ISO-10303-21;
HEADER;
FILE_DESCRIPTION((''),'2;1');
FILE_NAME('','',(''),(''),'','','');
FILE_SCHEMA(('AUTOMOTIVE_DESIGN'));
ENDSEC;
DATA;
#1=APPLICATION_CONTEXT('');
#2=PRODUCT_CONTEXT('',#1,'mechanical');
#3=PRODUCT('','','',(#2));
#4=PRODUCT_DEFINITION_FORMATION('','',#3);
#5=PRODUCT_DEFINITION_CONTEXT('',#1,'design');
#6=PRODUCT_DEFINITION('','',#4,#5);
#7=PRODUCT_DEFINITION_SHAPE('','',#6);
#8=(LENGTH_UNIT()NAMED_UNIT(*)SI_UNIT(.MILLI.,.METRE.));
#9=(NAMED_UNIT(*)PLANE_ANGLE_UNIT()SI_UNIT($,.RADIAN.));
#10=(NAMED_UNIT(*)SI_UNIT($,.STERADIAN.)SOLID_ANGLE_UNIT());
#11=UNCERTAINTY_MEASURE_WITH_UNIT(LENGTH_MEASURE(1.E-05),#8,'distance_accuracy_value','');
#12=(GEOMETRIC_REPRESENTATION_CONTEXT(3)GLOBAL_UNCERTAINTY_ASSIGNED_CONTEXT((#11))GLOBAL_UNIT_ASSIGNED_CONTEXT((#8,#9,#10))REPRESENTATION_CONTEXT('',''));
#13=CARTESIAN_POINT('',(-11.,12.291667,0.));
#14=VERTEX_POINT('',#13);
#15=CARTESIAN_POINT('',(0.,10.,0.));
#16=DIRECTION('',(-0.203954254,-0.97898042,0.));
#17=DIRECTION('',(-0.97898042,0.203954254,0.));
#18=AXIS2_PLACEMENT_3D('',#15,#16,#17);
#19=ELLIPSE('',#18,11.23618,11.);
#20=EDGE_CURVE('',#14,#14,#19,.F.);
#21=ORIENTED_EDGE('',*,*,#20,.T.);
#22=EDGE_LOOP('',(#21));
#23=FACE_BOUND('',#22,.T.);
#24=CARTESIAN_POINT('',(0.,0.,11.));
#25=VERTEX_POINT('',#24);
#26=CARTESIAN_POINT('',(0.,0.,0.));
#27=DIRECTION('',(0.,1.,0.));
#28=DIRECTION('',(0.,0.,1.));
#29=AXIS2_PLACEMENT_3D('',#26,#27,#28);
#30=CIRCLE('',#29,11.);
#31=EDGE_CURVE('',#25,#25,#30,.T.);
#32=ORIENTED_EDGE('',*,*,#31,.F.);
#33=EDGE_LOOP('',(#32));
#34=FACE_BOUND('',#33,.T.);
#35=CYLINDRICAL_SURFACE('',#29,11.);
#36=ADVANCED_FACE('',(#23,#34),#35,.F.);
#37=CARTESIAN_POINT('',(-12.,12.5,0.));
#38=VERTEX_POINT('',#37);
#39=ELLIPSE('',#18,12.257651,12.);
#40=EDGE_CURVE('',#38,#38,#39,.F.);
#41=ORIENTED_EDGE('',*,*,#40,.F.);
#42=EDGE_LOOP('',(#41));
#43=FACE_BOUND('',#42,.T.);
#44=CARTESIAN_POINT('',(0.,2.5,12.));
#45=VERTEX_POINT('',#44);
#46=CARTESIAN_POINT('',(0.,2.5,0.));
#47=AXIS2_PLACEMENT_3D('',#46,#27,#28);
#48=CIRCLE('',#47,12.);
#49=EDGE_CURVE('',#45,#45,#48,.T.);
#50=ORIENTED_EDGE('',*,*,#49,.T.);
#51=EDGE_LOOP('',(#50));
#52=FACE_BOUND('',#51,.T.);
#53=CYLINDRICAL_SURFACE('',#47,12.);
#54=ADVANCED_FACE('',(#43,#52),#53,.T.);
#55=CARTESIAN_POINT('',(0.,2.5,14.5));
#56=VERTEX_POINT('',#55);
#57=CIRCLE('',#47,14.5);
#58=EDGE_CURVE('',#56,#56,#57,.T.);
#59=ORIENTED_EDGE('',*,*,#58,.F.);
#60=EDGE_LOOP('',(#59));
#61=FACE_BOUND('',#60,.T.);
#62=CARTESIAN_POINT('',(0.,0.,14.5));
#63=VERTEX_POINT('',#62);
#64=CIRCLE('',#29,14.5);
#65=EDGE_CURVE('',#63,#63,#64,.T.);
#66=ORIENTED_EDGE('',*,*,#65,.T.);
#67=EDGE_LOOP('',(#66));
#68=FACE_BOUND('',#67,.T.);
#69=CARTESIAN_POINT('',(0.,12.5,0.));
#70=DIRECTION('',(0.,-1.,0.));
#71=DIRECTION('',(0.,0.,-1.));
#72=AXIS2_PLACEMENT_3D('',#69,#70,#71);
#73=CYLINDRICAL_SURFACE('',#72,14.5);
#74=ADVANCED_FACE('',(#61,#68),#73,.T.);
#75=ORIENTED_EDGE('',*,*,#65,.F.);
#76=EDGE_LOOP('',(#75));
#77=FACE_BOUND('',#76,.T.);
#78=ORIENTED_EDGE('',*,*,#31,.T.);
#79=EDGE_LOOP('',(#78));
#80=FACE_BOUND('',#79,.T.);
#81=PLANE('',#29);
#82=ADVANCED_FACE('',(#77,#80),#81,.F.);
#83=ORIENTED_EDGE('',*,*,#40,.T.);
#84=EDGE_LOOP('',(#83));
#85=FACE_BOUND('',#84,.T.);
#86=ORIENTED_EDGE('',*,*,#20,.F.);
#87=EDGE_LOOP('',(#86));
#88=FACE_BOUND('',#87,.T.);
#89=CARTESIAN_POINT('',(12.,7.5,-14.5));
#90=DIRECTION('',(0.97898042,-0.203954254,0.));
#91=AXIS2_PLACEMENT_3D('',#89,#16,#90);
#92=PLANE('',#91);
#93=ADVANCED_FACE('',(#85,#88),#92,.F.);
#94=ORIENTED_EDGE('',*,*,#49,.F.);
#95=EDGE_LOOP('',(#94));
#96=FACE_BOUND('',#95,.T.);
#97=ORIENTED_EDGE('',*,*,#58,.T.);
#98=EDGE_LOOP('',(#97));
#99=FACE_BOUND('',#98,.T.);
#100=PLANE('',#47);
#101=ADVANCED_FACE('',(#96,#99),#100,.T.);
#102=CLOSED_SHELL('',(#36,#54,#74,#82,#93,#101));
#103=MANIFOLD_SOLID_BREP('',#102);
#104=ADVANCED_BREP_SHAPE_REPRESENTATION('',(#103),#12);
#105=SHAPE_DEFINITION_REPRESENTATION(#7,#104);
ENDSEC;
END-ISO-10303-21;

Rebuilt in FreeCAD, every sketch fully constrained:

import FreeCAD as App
import Part
import Sketcher
from FreeCAD import Vector
Q = App.Units.Quantity

doc = App.newDocument("Part")
body = doc.addObject("PartDesign::Body", "Body")

sketch1 = body.newObject("Sketcher::SketchObject", "Sketch")
sketch1.AttachmentSupport = (doc.getObject("XZ_Plane"), [""])
sketch1.MapMode = "FlatFace"
sketch1.addGeometry(Part.Circle(Vector(0, 0, 0), Vector(0, 0, 1), 14), False)
sketch1.addConstraint([
    Sketcher.Constraint("Coincident", 0, 3, -1, 1),
    Sketcher.Constraint("Diameter", 0, Q("29 mm")),
])
pad1 = body.newObject("PartDesign::Pad", "Pad")
pad1.Profile = sketch1
pad1.Length = 12.5
pad1.Reversed = True

sketch2 = body.newObject("Sketcher::SketchObject", "Sketch001")
sketch2.AttachmentSupport = (doc.getObject("XZ_Plane"), [""])
sketch2.MapMode = "FlatFace"
sketch2.AttachmentOffset = App.Placement(Vector(0, 0, -2.5), App.Rotation())
sketch2.addGeometry([
    Part.Circle(Vector(0, 0, 0), Vector(0, 0, 1), 14),
    Part.Circle(Vector(0, 0, 0), Vector(0, 0, 1), 12),
], False)
sketch2.addConstraint([
    Sketcher.Constraint("Coincident", 0, 3, -1, 1),
    Sketcher.Constraint("Coincident", 1, 3, -1, 1),
    Sketcher.Constraint("Diameter", 0, Q("29 mm")),
    Sketcher.Constraint("Diameter", 1, Q("24 mm")),
])
pocket1 = body.newObject("PartDesign::Pocket", "Pocket")
pocket1.Profile = sketch2
pocket1.Length = 10

sketch3 = body.newObject("Sketcher::SketchObject", "Sketch002")
sketch3.AttachmentSupport = (doc.getObject("XZ_Plane"), [""])
sketch3.MapMode = "FlatFace"
sketch3.AttachmentOffset = App.Placement(Vector(0, 0, -12.5), App.Rotation())
sketch3.addGeometry(Part.Circle(Vector(0, 0, 0), Vector(0, 0, 1), 11), False)
sketch3.addConstraint([
    Sketcher.Constraint("Coincident", 0, 3, -1, 1),
    Sketcher.Constraint("Diameter", 0, Q("22 mm")),
])
pocket2 = body.newObject("PartDesign::Pocket", "Pocket001")
pocket2.Profile = sketch3
pocket2.Type = "ThroughAll"
pocket2.Reversed = True

sketch4 = body.newObject("Sketcher::SketchObject", "Sketch003")
sketch4.AttachmentSupport = (doc.getObject("XY_Plane"), [""])
sketch4.MapMode = "FlatFace"
sketch4.addGeometry([
    Part.LineSegment(Vector(12, 12, 0), Vector(-12, 12, 0)),
    Part.LineSegment(Vector(-12, 12, 0), Vector(12, 8, 0)),
    Part.LineSegment(Vector(12, 8, 0), Vector(12, 12, 0)),
], False)
sketch4.addConstraint([
    Sketcher.Constraint("Coincident", 0, 2, 1, 1),
    Sketcher.Constraint("Coincident", 1, 2, 2, 1),
    Sketcher.Constraint("Coincident", 2, 2, 0, 1),
    Sketcher.Constraint("Horizontal", 0),
    Sketcher.Constraint("Vertical", 2),
    Sketcher.Constraint("DistanceX", 0, 2, 0, 1, Q("24 mm")),
    Sketcher.Constraint("DistanceY", 2, 1, 2, 2, Q("5 mm")),
    Sketcher.Constraint("DistanceX", 0, 2, -1, 1, Q("12 mm")),
    Sketcher.Constraint("DistanceY", -1, 1, 0, 2, Q("12.5 mm")),
])
pocket3 = body.newObject("PartDesign::Pocket", "Pocket002")
pocket3.Profile = sketch4
pocket3.Type = "ThroughAll"
pocket3.Midplane = True

doc.recompute()
